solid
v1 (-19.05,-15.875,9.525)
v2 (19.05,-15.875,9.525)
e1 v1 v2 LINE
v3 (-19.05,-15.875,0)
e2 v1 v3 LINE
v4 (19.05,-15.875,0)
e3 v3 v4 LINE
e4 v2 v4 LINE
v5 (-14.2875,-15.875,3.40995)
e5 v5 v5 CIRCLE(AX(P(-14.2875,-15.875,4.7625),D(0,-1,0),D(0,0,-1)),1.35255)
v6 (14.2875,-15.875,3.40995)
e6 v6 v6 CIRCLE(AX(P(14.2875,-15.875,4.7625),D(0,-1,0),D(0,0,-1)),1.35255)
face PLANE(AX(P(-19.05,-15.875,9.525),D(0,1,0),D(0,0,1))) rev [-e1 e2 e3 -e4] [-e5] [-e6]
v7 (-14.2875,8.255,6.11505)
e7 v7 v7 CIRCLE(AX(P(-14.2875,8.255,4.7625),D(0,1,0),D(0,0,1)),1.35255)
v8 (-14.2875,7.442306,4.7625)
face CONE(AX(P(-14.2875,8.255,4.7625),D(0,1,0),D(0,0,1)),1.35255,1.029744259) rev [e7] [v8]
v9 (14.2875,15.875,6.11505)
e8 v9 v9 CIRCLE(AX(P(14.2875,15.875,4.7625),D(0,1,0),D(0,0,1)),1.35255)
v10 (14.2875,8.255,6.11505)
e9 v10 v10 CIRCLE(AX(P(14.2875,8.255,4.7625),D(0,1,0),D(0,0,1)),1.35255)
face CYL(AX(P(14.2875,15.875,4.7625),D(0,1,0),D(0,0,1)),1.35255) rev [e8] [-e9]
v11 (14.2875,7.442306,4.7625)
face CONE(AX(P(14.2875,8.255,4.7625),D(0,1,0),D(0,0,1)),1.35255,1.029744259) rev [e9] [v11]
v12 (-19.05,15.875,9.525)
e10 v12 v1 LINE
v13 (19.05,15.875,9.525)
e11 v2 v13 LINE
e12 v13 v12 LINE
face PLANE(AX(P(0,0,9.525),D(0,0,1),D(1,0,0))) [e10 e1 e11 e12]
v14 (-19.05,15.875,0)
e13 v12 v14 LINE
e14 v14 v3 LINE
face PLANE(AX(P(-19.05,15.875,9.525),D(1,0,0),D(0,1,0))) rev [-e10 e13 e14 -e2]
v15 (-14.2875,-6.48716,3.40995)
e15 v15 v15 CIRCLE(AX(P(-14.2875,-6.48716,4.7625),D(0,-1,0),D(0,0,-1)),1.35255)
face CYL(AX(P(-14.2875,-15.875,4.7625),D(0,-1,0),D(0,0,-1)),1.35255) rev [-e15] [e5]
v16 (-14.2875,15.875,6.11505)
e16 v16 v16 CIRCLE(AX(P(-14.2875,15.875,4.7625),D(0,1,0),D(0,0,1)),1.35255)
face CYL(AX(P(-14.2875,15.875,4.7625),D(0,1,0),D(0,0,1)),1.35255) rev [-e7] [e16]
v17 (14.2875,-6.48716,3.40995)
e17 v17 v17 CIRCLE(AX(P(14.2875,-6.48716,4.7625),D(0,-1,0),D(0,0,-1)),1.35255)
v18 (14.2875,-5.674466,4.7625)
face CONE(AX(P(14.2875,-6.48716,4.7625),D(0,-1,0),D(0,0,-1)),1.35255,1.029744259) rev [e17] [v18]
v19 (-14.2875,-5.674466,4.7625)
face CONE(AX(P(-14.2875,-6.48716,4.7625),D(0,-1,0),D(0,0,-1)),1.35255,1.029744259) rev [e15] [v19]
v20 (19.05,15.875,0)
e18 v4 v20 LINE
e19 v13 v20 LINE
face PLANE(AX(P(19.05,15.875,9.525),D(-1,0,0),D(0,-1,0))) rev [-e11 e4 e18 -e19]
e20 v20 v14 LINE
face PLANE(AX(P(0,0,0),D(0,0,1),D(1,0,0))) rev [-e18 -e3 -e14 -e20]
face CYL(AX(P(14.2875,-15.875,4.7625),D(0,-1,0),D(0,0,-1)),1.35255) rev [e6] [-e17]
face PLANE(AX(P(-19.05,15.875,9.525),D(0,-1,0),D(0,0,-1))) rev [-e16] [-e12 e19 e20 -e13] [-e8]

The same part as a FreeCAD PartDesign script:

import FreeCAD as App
import Part
import Sketcher
from FreeCAD import Vector
Q = App.Units.Quantity

doc = App.newDocument("Part")
params = doc.addObject("Spreadsheet::Sheet", "Params")
for row, (alias, value) in enumerate([
    ("sketch1_width", "1.5 in"),
    ("sketch1_height", "1.25 in"),
    ("pad1_length", "0.375 in"),
    ("hole_diameter", "0.1065 in"),
    ("hole_depth", "0.3 in"),
    ("hole2_diameter", "0.1065 in"),
    ("hole2_depth", "0.3696 in"),
], start=1):
    params.set(f"A{row}", alias)
    params.set(f"B{row}", "=" + value)
    params.setAlias(f"B{row}", alias)

body = doc.addObject("PartDesign::Body", "Body")

# Sketch on XY plane
sketch1 = body.newObject("Sketcher::SketchObject", "Sketch")
sketch1.AttachmentSupport = (doc.getObject("XY_Plane"), [""])
sketch1.MapMode = "FlatFace"
sketch1.addGeometry([
    Part.LineSegment(Vector(-19, 16, 0), Vector(-19, -16, 0)),
    Part.LineSegment(Vector(-19, -16, 0), Vector(19, -16, 0)),
    Part.LineSegment(Vector(19, -16, 0), Vector(19, 16, 0)),
    Part.LineSegment(Vector(19, 16, 0), Vector(-19, 16, 0)),
], False)
sketch1.addConstraint([
    Sketcher.Constraint("Coincident", 0, 2, 1, 1),
    Sketcher.Constraint("Coincident", 1, 2, 2, 1),
    Sketcher.Constraint("Coincident", 2, 2, 3, 1),
    Sketcher.Constraint("Coincident", 3, 2, 0, 1),
    Sketcher.Constraint("Vertical", 0),
    Sketcher.Constraint("Horizontal", 1),
    Sketcher.Constraint("Vertical", 2),
    Sketcher.Constraint("Horizontal", 3),
    Sketcher.Constraint("Symmetric", 0, 2, 2, 2, -1, 1),
    Sketcher.Constraint("DistanceX", 1, 1, 1, 2, Q("1.5 in")),
    Sketcher.Constraint("DistanceY", 0, 2, 0, 1, Q("1.25 in")),
])
sketch1.setExpression("Constraints[9]", "Params.sketch1_width")
sketch1.setExpression("Constraints[10]", "Params.sketch1_height")
pad1 = body.newObject("PartDesign::Pad", "Pad")
pad1.Profile = sketch1
pad1.setExpression("Length", "Params.pad1_length")

# Sketch on XZ plane
sketch2 = body.newObject("Sketcher::SketchObject", "Sketch001")
sketch2.AttachmentSupport = (doc.getObject("XZ_Plane"), [""])
sketch2.MapMode = "FlatFace"
sketch2.AttachmentOffset = App.Placement(Vector(0, 0, -0.625 * 25.4), App.Rotation())
sketch2.addGeometry([
    Part.Circle(Vector(-14.3, 4.8, 0), Vector(0, 0, 1), 1.4),
    Part.Circle(Vector(14.3, 4.8, 0), Vector(0, 0, 1), 1.4),
], False)
sketch2.addConstraint([
    Sketcher.Constraint("Equal", 0, 1),
    Sketcher.Constraint("Symmetric", 0, 3, 1, 3, -2),
    Sketcher.Constraint("Diameter", 0, Q("0.1065 in")),
    Sketcher.Constraint("DistanceX", 0, 3, -1, 1, Q("0.5625 in")),
    Sketcher.Constraint("DistanceY", -1, 1, 0, 3, Q("0.1875 in")),
])
doc.recompute()
hole = body.newObject("PartDesign::Hole", "Hole")
hole.Profile = sketch2
hole.ThreadType = "None"
hole.setExpression("Diameter", "Params.hole_diameter")
hole.DepthType = "Dimension"
hole.setExpression("Depth", "Params.hole_depth")
hole.DrillPoint = "Angled"
hole.DrillPointAngle = 118
hole.Reversed = True

# Sketch on XZ plane
sketch3 = body.newObject("Sketcher::SketchObject", "Sketch002")
sketch3.AttachmentSupport = (doc.getObject("XZ_Plane"), [""])
sketch3.MapMode = "FlatFace"
sketch3.AttachmentOffset = App.Placement(Vector(0, 0, 0.625 * 25.4), App.Rotation())
sketch3.addGeometry([
    Part.Circle(Vector(14.3, 4.8, 0), Vector(0, 0, 1), 1.4),
    Part.Circle(Vector(-14.3, 4.8, 0), Vector(0, 0, 1), 1.4),
], False)
sketch3.addConstraint([
    Sketcher.Constraint("Equal", 0, 1),
    Sketcher.Constraint("Symmetric", 0, 3, 1, 3, -2),
    Sketcher.Constraint("Diameter", 0, Q("0.1065 in")),
    Sketcher.Constraint("DistanceX", -1, 1, 0, 3, Q("0.5625 in")),
    Sketcher.Constraint("DistanceY", -1, 1, 0, 3, Q("0.1875 in")),
])
doc.recompute()
hole2 = body.newObject("PartDesign::Hole", "Hole001")
hole2.Profile = sketch3
hole2.ThreadType = "None"
hole2.setExpression("Diameter", "Params.hole2_diameter")
hole2.DepthType = "Dimension"
hole2.setExpression("Depth", "Params.hole2_depth")
hole2.DrillPoint = "Angled"
hole2.DrillPointAngle = 118

doc.recompute()
